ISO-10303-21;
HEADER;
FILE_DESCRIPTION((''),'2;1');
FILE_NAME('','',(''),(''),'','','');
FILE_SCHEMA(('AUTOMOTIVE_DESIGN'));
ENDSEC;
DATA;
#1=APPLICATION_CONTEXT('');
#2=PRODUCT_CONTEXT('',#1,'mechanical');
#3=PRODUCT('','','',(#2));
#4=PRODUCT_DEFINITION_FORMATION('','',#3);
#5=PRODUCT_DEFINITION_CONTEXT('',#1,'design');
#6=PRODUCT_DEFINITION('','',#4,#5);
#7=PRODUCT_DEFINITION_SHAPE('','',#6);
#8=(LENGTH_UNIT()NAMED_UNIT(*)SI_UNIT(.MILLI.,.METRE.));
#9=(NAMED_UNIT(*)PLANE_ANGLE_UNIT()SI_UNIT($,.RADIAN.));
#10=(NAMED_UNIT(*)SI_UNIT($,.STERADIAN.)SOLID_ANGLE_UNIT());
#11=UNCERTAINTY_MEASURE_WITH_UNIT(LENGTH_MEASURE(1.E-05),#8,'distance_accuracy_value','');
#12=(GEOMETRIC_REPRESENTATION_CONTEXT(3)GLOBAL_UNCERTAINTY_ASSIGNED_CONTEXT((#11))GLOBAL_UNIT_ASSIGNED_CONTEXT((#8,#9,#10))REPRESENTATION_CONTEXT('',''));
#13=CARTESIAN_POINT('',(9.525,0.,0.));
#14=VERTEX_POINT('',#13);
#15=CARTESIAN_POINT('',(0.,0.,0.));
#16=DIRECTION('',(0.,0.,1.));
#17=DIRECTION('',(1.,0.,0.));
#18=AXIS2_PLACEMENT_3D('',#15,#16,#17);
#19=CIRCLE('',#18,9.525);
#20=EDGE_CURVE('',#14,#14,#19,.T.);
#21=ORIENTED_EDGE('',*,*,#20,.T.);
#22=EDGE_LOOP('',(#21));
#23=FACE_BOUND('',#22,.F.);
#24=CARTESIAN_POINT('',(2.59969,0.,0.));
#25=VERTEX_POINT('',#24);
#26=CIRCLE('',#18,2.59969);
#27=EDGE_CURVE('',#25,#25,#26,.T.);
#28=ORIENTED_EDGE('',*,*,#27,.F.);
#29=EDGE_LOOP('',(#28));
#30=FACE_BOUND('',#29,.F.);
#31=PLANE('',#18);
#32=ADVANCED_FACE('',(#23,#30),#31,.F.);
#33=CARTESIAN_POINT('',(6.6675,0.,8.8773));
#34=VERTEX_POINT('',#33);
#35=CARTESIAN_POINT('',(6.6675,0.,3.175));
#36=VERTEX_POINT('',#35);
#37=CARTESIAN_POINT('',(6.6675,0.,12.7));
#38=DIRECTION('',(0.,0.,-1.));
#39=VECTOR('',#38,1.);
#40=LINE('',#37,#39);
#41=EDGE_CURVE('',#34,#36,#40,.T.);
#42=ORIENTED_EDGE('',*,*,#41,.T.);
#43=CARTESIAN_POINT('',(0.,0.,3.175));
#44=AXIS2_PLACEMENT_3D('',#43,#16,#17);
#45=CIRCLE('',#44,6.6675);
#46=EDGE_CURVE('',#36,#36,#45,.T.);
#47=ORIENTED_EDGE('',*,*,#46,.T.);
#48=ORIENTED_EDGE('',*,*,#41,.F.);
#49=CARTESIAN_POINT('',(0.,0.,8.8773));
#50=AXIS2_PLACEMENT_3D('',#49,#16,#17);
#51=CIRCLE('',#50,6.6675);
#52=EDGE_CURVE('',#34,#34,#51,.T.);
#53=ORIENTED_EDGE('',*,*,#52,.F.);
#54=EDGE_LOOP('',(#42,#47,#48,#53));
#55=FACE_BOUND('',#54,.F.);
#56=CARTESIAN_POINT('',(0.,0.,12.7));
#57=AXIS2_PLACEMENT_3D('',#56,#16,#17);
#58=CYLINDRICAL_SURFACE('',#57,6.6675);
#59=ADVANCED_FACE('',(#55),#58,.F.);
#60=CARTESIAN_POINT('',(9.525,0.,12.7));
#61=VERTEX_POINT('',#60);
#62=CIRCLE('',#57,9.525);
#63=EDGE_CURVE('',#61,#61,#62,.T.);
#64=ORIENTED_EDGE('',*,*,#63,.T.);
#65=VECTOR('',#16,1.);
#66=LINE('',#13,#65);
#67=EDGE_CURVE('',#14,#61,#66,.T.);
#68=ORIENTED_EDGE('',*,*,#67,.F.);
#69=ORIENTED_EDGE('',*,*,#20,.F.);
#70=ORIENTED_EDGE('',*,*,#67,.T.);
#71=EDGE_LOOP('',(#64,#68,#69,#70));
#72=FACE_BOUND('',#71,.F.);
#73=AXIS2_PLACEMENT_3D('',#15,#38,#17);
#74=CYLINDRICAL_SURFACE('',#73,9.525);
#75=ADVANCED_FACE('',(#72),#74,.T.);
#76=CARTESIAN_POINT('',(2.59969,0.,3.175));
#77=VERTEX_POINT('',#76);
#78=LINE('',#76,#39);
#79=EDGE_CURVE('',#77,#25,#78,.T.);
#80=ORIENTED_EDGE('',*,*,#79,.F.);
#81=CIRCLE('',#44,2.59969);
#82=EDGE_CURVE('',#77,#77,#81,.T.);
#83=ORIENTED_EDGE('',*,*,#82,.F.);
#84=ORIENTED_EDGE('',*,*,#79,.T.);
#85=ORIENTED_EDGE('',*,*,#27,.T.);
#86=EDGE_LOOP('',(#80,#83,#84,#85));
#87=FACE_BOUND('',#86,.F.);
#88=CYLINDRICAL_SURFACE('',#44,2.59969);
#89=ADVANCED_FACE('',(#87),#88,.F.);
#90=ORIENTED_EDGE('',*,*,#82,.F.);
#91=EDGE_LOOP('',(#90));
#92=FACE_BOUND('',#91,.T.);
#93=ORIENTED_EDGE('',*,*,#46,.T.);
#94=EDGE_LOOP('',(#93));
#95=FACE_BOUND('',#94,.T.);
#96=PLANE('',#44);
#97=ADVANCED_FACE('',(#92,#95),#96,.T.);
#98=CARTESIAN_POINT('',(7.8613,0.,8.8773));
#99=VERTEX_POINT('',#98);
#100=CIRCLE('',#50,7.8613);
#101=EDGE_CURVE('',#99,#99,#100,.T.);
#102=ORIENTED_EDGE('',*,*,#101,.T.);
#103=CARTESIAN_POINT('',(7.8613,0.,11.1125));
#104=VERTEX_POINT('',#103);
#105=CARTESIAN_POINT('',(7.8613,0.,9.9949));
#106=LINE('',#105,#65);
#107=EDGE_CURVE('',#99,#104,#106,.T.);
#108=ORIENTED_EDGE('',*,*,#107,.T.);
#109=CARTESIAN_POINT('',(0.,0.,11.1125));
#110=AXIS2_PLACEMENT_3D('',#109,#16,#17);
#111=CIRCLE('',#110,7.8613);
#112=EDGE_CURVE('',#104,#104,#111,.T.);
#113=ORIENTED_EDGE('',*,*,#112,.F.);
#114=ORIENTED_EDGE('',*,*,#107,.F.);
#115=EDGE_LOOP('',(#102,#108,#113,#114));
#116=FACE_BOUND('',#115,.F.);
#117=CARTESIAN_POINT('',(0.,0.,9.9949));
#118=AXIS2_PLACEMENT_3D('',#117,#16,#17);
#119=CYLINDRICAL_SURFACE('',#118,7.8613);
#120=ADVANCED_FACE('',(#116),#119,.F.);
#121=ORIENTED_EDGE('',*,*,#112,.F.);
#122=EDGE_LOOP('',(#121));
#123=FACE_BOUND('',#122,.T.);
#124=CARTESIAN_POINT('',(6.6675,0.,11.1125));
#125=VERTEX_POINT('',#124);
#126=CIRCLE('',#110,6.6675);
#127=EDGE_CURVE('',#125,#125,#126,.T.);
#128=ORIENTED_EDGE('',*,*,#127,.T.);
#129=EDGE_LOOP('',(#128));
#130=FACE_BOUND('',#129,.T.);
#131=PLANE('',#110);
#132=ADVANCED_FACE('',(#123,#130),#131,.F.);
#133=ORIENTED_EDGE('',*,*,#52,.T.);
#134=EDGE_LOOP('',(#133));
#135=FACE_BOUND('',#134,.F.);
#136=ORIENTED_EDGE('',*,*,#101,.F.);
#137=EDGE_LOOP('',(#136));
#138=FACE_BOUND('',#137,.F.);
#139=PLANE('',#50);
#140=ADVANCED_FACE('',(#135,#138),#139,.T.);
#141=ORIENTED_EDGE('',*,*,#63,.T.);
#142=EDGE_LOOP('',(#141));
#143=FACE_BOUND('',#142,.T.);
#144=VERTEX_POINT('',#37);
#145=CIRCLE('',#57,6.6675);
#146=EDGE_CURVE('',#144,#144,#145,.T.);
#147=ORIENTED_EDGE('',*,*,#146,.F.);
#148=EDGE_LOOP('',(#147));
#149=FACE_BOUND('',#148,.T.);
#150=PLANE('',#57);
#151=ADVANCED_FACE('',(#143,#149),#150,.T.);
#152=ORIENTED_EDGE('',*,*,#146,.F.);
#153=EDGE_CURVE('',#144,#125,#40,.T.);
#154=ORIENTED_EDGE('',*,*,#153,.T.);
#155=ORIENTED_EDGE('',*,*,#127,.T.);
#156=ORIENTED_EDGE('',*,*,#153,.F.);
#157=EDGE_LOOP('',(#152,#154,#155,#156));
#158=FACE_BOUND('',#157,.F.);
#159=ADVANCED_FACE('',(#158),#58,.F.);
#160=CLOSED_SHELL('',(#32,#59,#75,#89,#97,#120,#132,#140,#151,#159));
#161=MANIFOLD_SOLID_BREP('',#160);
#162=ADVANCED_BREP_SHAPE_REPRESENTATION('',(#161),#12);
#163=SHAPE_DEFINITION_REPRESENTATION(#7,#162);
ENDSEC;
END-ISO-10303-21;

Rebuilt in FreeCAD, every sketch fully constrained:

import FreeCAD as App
import Part
import Sketcher
Q = App.Units.Quantity

doc = App.newDocument("Part")
body = doc.addObject("PartDesign::Body", "Body")

sketch1 = body.newObject("Sketcher::SketchObject", "Sketch")
sketch1.AttachmentSupport = (doc.getObject("XY_Plane"), [""])
sketch1.MapMode = "FlatFace"
sketch1.addGeometry(Part.Circle(App.Vector(0, 0, 0), App.Vector(0, 0, 1), 10), False)
sketch1.addConstraint([
    Sketcher.Constraint("Coincident", 0, 3, -1, 1),
    Sketcher.Constraint("Diameter", 0, Q("0.75 in")),
])
pad1 = body.newObject("PartDesign::Pad", "Pad")
pad1.Profile = sketch1
pad1.Length = Q("0.5 in")

sketch2 = body.newObject("Sketcher::SketchObject", "Sketch001")
sketch2.AttachmentSupport = (doc.getObject("XY_Plane"), [""])
sketch2.MapMode = "FlatFace"
sketch2.AttachmentOffset = App.Placement(App.Vector(0, 0, 0.5 * 25.4), App.Rotation())
sketch2.addGeometry(Part.Circle(App.Vector(0, 0, 0), App.Vector(0, 0, 1), 7), False)
sketch2.addConstraint([
    Sketcher.Constraint("Coincident", 0, 3, -1, 1),
    Sketcher.Constraint("Diameter", 0, Q("0.525 in")),
])
pocket1 = body.newObject("PartDesign::Pocket", "Pocket")
pocket1.Profile = sketch2
pocket1.Length = Q("0.375 in")

sketch3 = body.newObject("Sketcher::SketchObject", "Sketch002")
sketch3.AttachmentSupport = (doc.getObject("XY_Plane"), [""])
sketch3.MapMode = "FlatFace"
sketch3.AttachmentOffset = App.Placement(App.Vector(0, 0, 0.125 * 25.4), App.Rotation())
sketch3.addGeometry(Part.Circle(App.Vector(0, 0, 0), App.Vector(0, 0, 1), 2.6), False)
sketch3.addConstraint([
    Sketcher.Constraint("Coincident", 0, 3, -1, 1),
    Sketcher.Constraint("Diameter", 0, Q("0.2047 in")),
])
pocket2 = body.newObject("PartDesign::Pocket", "Pocket001")
pocket2.Profile = sketch3
pocket2.Length = Q("1 in")

sketch4 = body.newObject("Sketcher::SketchObject", "Sketch003")
sketch4.AttachmentSupport = (doc.getObject("XZ_Plane"), [""])
sketch4.MapMode = "FlatFace"
sketch4.addGeometry([
    Part.LineSegment(App.Vector(6.7, 11.1, 0), App.Vector(6.7, 8.9, 0)),
    Part.LineSegment(App.Vector(6.7, 8.9, 0), App.Vector(7.9, 8.9, 0)),
    Part.LineSegment(App.Vector(7.9, 8.9, 0), App.Vector(7.9, 11.1, 0)),
    Part.LineSegment(App.Vector(7.9, 11.1, 0), App.Vector(6.7, 11.1, 0)),
], False)
sketch4.addConstraint([
    Sketcher.Constraint("Coincident", 0, 2, 1, 1),
    Sketcher.Constraint("Coincident", 1, 2, 2, 1),
    Sketcher.Constraint("Coincident", 2, 2, 3, 1),
    Sketcher.Constraint("Coincident", 3, 2, 0, 1),
    Sketcher.Constraint("Vertical", 0),
    Sketcher.Constraint("Horizontal", 1),
    Sketcher.Constraint("Vertical", 2),
    Sketcher.Constraint("Horizontal", 3),
    Sketcher.Constraint("DistanceX", 1, 1, 1, 2, Q("0.047 in")),
    Sketcher.Constraint("DistanceY", 0, 2, 0, 1, Q("0.088 in")),
    Sketcher.Constraint("DistanceY", -1, 1, 2, 2, Q("0.4375 in")),
    Sketcher.Constraint("DistanceX", -1, 1, 0, 2, Q("0.2625 in")),
])
groove = body.newObject("PartDesign::Groove", "Groove")
groove.Profile = sketch4
groove.ReferenceAxis = (sketch4, ["V_Axis"])
groove.Angle = 360

doc.recompute()
